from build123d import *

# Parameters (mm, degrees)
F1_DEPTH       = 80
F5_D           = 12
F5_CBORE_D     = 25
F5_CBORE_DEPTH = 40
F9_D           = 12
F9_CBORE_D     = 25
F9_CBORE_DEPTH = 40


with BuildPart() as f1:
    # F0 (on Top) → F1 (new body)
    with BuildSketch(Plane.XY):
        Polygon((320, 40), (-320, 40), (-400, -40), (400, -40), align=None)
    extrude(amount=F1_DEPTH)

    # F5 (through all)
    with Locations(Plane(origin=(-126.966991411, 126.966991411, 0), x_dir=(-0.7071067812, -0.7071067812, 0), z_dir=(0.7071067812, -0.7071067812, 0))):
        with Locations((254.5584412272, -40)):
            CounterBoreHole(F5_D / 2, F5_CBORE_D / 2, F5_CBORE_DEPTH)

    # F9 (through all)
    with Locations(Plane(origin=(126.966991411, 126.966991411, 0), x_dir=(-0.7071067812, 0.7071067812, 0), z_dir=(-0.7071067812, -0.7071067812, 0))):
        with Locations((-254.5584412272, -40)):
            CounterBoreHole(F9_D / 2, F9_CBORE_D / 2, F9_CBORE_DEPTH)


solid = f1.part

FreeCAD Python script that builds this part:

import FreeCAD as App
import Part
import Sketcher

V = App.Vector
Q = App.Units.Quantity

doc = App.newDocument("Part")
body = doc.addObject("PartDesign::Body", "Body")

# Sketch on XY plane
sketch1 = body.newObject("Sketcher::SketchObject", "Sketch")
sketch1.AttachmentSupport = (doc.getObject("XY_Plane"), [""])
sketch1.MapMode = "FlatFace"
sketch1.addGeometry([
    Part.LineSegment(V(320, 40, 0), V(-320, 40, 0)),
    Part.LineSegment(V(-320, 40, 0), V(-400, -40, 0)),
    Part.LineSegment(V(-400, -40, 0), V(400, -40, 0)),
    Part.LineSegment(V(400, -40, 0), V(320, 40, 0)),
], False)
sketch1.addConstraint([
    Sketcher.Constraint("Coincident", 0, 2, 1, 1),
    Sketcher.Constraint("Coincident", 1, 2, 2, 1),
    Sketcher.Constraint("Coincident", 2, 2, 3, 1),
    Sketcher.Constraint("Coincident", 3, 2, 0, 1),
    Sketcher.Constraint("Horizontal", 0),
    Sketcher.Constraint("Horizontal", 2),
    Sketcher.Constraint("Perpendicular", 1, 3),
    Sketcher.Constraint("Equal", 1, 3),
    Sketcher.Constraint("DistanceX", 0, 2, 0, 1, Q("640 mm")),
    Sketcher.Constraint("DistanceX", 2, 1, 2, 2, Q("800 mm")),
    Sketcher.Constraint("DistanceX", 0, 2, -1, 1, Q("320 mm")),
    Sketcher.Constraint("DistanceY", -1, 1, 0, 2, Q("40 mm")),
])
pad1 = body.newObject("PartDesign::Pad", "Pad")
pad1.Profile = sketch1
pad1.Length = 80

# Sketch on an angled plane
sketch2 = body.newObject("Sketcher::SketchObject", "Sketch001")
sketch2.Placement = App.Placement(V(-126.966991, 126.966991, 0), App.Rotation(V(-0.707106781, -0.707106781, 0), V(0, 0, -0.999999999), V(0.707106781, -0.707106781, 0), "ZXY"))
sketch2.addGeometry(Part.Circle(V(255, -40, 0), V(0, 0, 1), 6), False)
sketch2.addConstraint([
    Sketcher.Constraint("Diameter", 0, Q("12 mm")),
    Sketcher.Constraint("DistanceY", 0, 3, -1, 1, Q("40 mm")),
    Sketcher.Constraint("DistanceX", -1, 1, 0, 3, Q("254.558441 mm")),
])
doc.recompute()
hole = body.newObject("PartDesign::Hole", "Hole")
hole.Profile = sketch2
hole.ThreadType = "None"
hole.Diameter = 12
hole.DepthType = "ThroughAll"
hole.HoleCutType = "Counterbore"
hole.HoleCutDiameter = 25
hole.HoleCutDepth = 40

# Sketch on an angled plane
sketch3 = body.newObject("Sketcher::SketchObject", "Sketch002")
sketch3.Placement = App.Placement(V(126.966991, 126.966991, 0), App.Rotation(V(-0.707106781, 0.707106781, 0), V(0, 0, -0.999999999), V(-0.707106781, -0.707106781, 0), "ZXY"))
sketch3.addGeometry(Part.Circle(V(-255, -40, 0), V(0, 0, 1), 6), False)
sketch3.addConstraint([
    Sketcher.Constraint("Diameter", 0, Q("12 mm")),
    Sketcher.Constraint("DistanceY", 0, 3, -1, 1, Q("40 mm")),
    Sketcher.Constraint("DistanceX", 0, 3, -1, 1, Q("254.558441 mm")),
])
doc.recompute()
hole2 = body.newObject("PartDesign::Hole", "Hole001")
hole2.Profile = sketch3
hole2.ThreadType = "None"
hole2.Diameter = 12
hole2.DepthType = "ThroughAll"
hole2.HoleCutType = "Counterbore"
hole2.HoleCutDiameter = 25
hole2.HoleCutDepth = 40

doc.recompute()
